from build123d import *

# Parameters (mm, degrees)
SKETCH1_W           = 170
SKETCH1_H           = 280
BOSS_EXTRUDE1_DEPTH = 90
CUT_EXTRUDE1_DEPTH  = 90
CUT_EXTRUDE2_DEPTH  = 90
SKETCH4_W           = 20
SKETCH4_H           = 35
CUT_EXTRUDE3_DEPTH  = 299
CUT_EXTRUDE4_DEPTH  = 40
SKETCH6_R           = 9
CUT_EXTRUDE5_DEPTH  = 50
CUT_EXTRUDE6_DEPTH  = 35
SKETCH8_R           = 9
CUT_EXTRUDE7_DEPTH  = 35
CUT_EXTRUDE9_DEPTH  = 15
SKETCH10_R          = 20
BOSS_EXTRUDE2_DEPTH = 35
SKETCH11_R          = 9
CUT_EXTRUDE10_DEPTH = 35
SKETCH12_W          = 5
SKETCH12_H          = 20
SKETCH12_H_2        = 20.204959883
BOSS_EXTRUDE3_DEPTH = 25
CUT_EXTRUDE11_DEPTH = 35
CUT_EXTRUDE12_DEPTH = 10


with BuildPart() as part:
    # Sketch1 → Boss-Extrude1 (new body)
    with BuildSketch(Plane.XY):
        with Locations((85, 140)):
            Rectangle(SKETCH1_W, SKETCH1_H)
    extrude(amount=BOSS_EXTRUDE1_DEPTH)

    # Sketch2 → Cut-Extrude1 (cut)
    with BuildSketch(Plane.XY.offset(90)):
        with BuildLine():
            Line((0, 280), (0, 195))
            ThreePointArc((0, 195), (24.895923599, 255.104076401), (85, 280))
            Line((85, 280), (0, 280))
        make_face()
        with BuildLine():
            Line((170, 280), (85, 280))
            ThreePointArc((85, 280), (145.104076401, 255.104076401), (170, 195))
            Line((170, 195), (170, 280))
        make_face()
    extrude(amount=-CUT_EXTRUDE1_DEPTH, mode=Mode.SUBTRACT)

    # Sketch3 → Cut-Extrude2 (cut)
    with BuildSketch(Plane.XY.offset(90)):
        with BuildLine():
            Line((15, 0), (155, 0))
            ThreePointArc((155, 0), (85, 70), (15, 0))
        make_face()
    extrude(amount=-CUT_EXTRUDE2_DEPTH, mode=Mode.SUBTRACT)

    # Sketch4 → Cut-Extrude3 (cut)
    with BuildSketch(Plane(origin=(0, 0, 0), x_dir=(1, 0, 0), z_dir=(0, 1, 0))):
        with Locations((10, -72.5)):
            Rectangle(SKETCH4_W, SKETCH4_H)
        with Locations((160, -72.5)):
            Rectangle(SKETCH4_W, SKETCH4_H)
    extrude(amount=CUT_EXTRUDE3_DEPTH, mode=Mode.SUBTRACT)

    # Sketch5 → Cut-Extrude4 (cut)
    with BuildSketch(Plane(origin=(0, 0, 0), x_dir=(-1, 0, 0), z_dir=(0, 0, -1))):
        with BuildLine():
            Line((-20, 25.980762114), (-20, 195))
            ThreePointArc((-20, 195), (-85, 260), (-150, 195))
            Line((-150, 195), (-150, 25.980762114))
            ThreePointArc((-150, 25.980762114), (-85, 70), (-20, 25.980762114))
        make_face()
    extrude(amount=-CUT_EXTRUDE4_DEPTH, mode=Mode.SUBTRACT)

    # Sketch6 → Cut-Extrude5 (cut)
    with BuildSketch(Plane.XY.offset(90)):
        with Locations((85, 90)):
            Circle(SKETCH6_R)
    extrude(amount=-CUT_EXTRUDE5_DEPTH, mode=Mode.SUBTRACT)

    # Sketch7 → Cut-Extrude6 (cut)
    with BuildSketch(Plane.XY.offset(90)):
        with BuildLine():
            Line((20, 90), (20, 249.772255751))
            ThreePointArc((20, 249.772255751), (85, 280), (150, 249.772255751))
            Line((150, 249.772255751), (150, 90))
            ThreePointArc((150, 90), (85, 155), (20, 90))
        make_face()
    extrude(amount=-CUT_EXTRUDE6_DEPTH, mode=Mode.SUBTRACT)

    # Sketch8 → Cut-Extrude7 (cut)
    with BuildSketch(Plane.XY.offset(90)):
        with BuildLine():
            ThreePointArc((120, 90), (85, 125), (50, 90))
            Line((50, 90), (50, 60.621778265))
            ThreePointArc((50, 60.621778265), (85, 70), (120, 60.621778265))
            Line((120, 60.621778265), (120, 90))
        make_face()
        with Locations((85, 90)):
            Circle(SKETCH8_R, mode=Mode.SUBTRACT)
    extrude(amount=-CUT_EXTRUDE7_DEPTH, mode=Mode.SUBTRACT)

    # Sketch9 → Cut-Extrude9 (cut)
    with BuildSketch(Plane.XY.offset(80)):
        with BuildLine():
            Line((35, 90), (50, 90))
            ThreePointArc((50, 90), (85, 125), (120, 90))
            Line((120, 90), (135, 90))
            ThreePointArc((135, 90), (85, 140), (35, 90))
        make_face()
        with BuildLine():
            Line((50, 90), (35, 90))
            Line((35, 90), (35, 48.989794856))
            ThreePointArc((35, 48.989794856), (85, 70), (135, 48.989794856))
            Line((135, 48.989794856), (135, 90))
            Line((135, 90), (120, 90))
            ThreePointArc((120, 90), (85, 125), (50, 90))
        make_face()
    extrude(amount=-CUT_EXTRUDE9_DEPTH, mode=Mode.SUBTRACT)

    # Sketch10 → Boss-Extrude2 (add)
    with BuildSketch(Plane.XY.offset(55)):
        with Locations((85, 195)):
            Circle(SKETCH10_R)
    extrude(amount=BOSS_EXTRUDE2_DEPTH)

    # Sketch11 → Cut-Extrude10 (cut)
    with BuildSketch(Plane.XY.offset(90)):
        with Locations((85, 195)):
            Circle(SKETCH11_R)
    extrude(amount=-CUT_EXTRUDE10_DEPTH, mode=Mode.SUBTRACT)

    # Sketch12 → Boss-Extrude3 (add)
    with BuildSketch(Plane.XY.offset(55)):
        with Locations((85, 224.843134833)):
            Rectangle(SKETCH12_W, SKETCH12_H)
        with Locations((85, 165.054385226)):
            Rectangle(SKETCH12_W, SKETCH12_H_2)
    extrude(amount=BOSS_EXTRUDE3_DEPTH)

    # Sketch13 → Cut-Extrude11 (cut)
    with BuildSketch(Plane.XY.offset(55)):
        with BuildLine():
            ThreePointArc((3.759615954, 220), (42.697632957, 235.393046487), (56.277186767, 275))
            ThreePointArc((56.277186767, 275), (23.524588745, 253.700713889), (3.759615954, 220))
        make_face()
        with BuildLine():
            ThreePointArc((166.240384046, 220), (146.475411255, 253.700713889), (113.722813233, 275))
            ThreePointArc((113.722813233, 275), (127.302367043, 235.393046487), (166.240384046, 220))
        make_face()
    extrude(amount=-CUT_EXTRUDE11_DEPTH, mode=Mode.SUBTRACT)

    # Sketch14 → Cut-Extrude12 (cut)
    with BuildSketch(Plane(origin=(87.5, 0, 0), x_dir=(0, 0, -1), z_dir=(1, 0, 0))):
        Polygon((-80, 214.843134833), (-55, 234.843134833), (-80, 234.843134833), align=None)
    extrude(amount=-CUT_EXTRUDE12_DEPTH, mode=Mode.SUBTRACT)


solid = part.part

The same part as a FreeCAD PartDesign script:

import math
import FreeCAD as App
import Part
import Sketcher
from FreeCAD import Vector


def add_polygon(sketch, points):
    """Adds a closed chain of lines whose ends are joined by coincident constraints."""
    first, n = sketch.GeometryCount, len(points)
    for a, b in zip(points, points[1:] + points[:1]):
        sketch.addGeometry(Part.LineSegment(App.Vector(*a, 0), App.Vector(*b, 0)), False)
    for i in range(n):
        sketch.addConstraint(Sketcher.Constraint("Coincident", first + i, 2, first + (i + 1) % n, 1))

doc = App.newDocument("Part")
body = doc.addObject("PartDesign::Body", "Body")

# Sketch on XY plane
sketch1 = doc.addObject("Sketcher::SketchObject", "Sketch")
body.addObject(sketch1)
sketch1.AttachmentSupport = (doc.XY_Plane, [""])
sketch1.MapMode = "FlatFace"
add_polygon(sketch1, [(0, 280), (0, 0), (170, 0), (170, 280)])  # lines 0-3
sketch1.addConstraint([
    Sketcher.Constraint("Vertical", 0),
    Sketcher.Constraint("Horizontal", 1),
    Sketcher.Constraint("Vertical", 2),
    Sketcher.Constraint("Horizontal", 3),
    Sketcher.Constraint("Coincident", 0, 2, -1, 1),
    Sketcher.Constraint("DistanceX", 1, 1, 1, 2, 170.0),
    Sketcher.Constraint("DistanceY", 0, 2, 0, 1, 280.0),
])
pad1 = doc.addObject("PartDesign::Pad", "Pad")
body.addObject(pad1)
pad1.Profile = sketch1
pad1.Length = 90

# Sketch on XY plane
sketch2 = doc.addObject("Sketcher::SketchObject", "Sketch001")
body.addObject(sketch2)
sketch2.AttachmentSupport = (doc.XY_Plane, [""])
sketch2.MapMode = "FlatFace"
sketch2.AttachmentOffset = App.Placement(Vector(0, 0, 90), App.Rotation())
sketch2.addGeometry([
    Part.LineSegment(Vector(0, 280, 0), Vector(0, 195, 0)),  # 0
    Part.ArcOfCircle(Part.Circle(Vector(85, 195, 0), Vector(0, 0, 1), 85), math.radians(90), math.radians(180)),  # 1
    Part.LineSegment(Vector(85, 280, 0), Vector(0, 280, 0)),  # 2
    Part.LineSegment(Vector(170, 280, 0), Vector(85, 280, 0)),  # 3
    Part.ArcOfCircle(Part.Circle(Vector(85, 195, 0), Vector(0, 0, 1), 85), math.radians(0), math.radians(90)),  # 4
    Part.LineSegment(Vector(170, 195, 0), Vector(170, 280, 0)),  # 5
], False)
sketch2.addConstraint([
    Sketcher.Constraint("Tangent", 0, 2, 1, 2),
    Sketcher.Constraint("Tangent", 1, 1, 2, 1),
    Sketcher.Constraint("Coincident", 2, 2, 0, 1),
    Sketcher.Constraint("Tangent", 3, 2, 4, 2),
    Sketcher.Constraint("Tangent", 4, 1, 5, 1),
    Sketcher.Constraint("Coincident", 5, 2, 3, 1),
    Sketcher.Constraint("Vertical", 0),
    Sketcher.Constraint("Horizontal", 2),
    Sketcher.Constraint("Horizontal", 3),
    Sketcher.Constraint("Vertical", 5),
    Sketcher.Constraint("Coincident", 4, 3, 1, 3),
    Sketcher.Constraint("Equal", 1, 4),
    Sketcher.Constraint("PointOnObject", 0, 2, -2),
    Sketcher.Constraint("Radius", 1, 85.0),
    Sketcher.Constraint("DistanceY", -1, 1, 1, 3, 195.0),
])
pocket1 = doc.addObject("PartDesign::Pocket", "Pocket")
body.addObject(pocket1)
pocket1.Profile = sketch2
pocket1.Length = 90

# Sketch on XY plane
sketch3 = doc.addObject("Sketcher::SketchObject", "Sketch002")
body.addObject(sketch3)
sketch3.AttachmentSupport = (doc.XY_Plane, [""])
sketch3.MapMode = "FlatFace"
sketch3.AttachmentOffset = App.Placement(Vector(0, 0, 90), App.Rotation())
sketch3.addGeometry([
    Part.LineSegment(Vector(15, 0, 0), Vector(155, 0, 0)),
    Part.ArcOfCircle(Part.Circle(Vector(85, 0, 0), Vector(0, 0, 1), 70), math.radians(0), math.radians(180)),
], False)
sketch3.addConstraint([
    Sketcher.Constraint("Coincident", 0, 1, 1, 2),
    Sketcher.Constraint("Coincident", 1, 1, 0, 2),
    Sketcher.Constraint("Horizontal", 0),
    Sketcher.Constraint("PointOnObject", 1, 3, -1),
    Sketcher.Constraint("PointOnObject", 0, 1, -1),
    Sketcher.Constraint("Radius", 1, 70.0),
    Sketcher.Constraint("DistanceX", -1, 1, 1, 3, 85.0),
])
pocket2 = doc.addObject("PartDesign::Pocket", "Pocket001")
body.addObject(pocket2)
pocket2.Profile = sketch3
pocket2.Length = 90

# Sketch on XZ plane
sketch4 = doc.addObject("Sketcher::SketchObject", "Sketch003")
body.addObject(sketch4)
sketch4.AttachmentSupport = (doc.XZ_Plane, [""])
sketch4.MapMode = "FlatFace"
add_polygon(sketch4, [(0, 55), (0, 90), (20, 90), (20, 55)])  # lines 0-3
add_polygon(sketch4, [(150, 55), (150, 90), (170, 90), (170, 55)])  # lines 4-7
sketch4.addConstraint([
    Sketcher.Constraint("Vertical", 0),
    Sketcher.Constraint("Horizontal", 1),
    Sketcher.Constraint("Vertical", 2),
    Sketcher.Constraint("Horizontal", 3),
    Sketcher.Constraint("Vertical", 4),
    Sketcher.Constraint("Horizontal", 5),
    Sketcher.Constraint("Vertical", 6),
    Sketcher.Constraint("Horizontal", 7),
    Sketcher.Constraint("PointOnObject", 0, 2, -2),
    Sketcher.Constraint("Horizontal", 1, 2, 4, 2),
    Sketcher.Constraint("Horizontal", 3, 2, 6, 2),
    Sketcher.Constraint("Equal", 3, 5),
    Sketcher.Constraint("DistanceX", 1, 1, 1, 2, 20.0),
    Sketcher.Constraint("DistanceY", 0, 1, 0, 2, 35.0),
    Sketcher.Constraint("DistanceY", -1, 1, 0, 2, 90.0),
    Sketcher.Constraint("DistanceX", -1, 1, 4, 2, 150.0),
])
pocket3 = doc.addObject("PartDesign::Pocket", "Pocket002")
body.addObject(pocket3)
pocket3.Profile = sketch4
pocket3.Length = 299

# Sketch on XY plane
sketch5 = doc.addObject("Sketcher::SketchObject", "Sketch004")
body.addObject(sketch5)
sketch5.AttachmentSupport = (doc.XY_Plane, [""])
sketch5.MapMode = "FlatFace"
sketch5.addGeometry([
    Part.LineSegment(Vector(20, 26, 0), Vector(20, 195, 0)),
    Part.ArcOfCircle(Part.Circle(Vector(85, 195, 0), Vector(0, 0, 1), 65), math.radians(0), math.radians(180)),
    Part.LineSegment(Vector(150, 195, 0), Vector(150, 26, 0)),
    Part.ArcOfCircle(Part.Circle(Vector(85, 0, 0), Vector(0, 0, 1), 70), math.radians(22), math.radians(158)),
], False)
sketch5.addConstraint([
    Sketcher.Constraint("Tangent", 0, 2, 1, 2),
    Sketcher.Constraint("Tangent", 1, 1, 2, 1),
    Sketcher.Constraint("Coincident", 2, 2, 3, 1),
    Sketcher.Constraint("Coincident", 3, 2, 0, 1),
    Sketcher.Constraint("Vertical", 0),
    Sketcher.Constraint("Vertical", 2),
    Sketcher.Constraint("PointOnObject", 3, 3, -1),
    Sketcher.Constraint("Horizontal", 2, 2, 3, 2),
    Sketcher.Constraint("Radius", 1, 65.0),
    Sketcher.Constraint("Radius", 3, 70.0),
    Sketcher.Constraint("DistanceX", -1, 1, 1, 3, 85.0),
    Sketcher.Constraint("DistanceY", -1, 1, 1, 3, 195.0),
])
pocket4 = doc.addObject("PartDesign::Pocket", "Pocket003")
body.addObject(pocket4)
pocket4.Profile = sketch5
pocket4.Length = 40
pocket4.Reversed = True

# Sketch on XY plane
sketch6 = doc.addObject("Sketcher::SketchObject", "Sketch005")
body.addObject(sketch6)
sketch6.AttachmentSupport = (doc.XY_Plane, [""])
sketch6.MapMode = "FlatFace"
sketch6.AttachmentOffset = App.Placement(Vector(0, 0, 90), App.Rotation())
sketch6.addGeometry(Part.Circle(Vector(85, 90, 0), Vector(0, 0, 1), 9), False)
sketch6.addConstraint([
    Sketcher.Constraint("Diameter", 0, 18.0),
    Sketcher.Constraint("DistanceX", -1, 1, 0, 3, 85.0),
    Sketcher.Constraint("DistanceY", -1, 1, 0, 3, 90.0),
])
pocket5 = doc.addObject("PartDesign::Pocket", "Pocket004")
body.addObject(pocket5)
pocket5.Profile = sketch6
pocket5.Length = 50

# Sketch on XY plane
sketch7 = doc.addObject("Sketcher::SketchObject", "Sketch006")
body.addObject(sketch7)
sketch7.AttachmentSupport = (doc.XY_Plane, [""])
sketch7.MapMode = "FlatFace"
sketch7.AttachmentOffset = App.Placement(Vector(0, 0, 90), App.Rotation())
sketch7.addGeometry([
    Part.LineSegment(Vector(20, 250, 0), Vector(20, 90, 0)),
    Part.ArcOfCircle(Part.Circle(Vector(85, 90, 0), Vector(0, 0, 1), 65), math.radians(0), math.radians(180)),
    Part.LineSegment(Vector(150, 90, 0), Vector(150, 250, 0)),
    Part.ArcOfCircle(Part.Circle(Vector(85, 195, 0), Vector(0, 0, 1), 85), math.radians(40), math.radians(140)),
], False)
sketch7.addConstraint([
    Sketcher.Constraint("Tangent", 0, 2, 1, 2),
    Sketcher.Constraint("Tangent", 1, 1, 2, 1),
    Sketcher.Constraint("Coincident", 2, 2, 3, 1),
    Sketcher.Constraint("Coincident", 3, 2, 0, 1),
    Sketcher.Constraint("Vertical", 0),
    Sketcher.Constraint("Vertical", 2),
    Sketcher.Constraint("Horizontal", 2, 2, 3, 2),
    Sketcher.Constraint("Radius", 1, 65.0),
    Sketcher.Constraint("Radius", 3, 85.0),
    Sketcher.Constraint("DistanceX", -1, 1, 1, 3, 85.0),
    Sketcher.Constraint("DistanceY", -1, 1, 1, 3, 90.0),
    Sketcher.Constraint("DistanceY", -1, 1, 3, 3, 195.0),
])
pocket6 = doc.addObject("PartDesign::Pocket", "Pocket005")
body.addObject(pocket6)
pocket6.Profile = sketch7
pocket6.Length = 35

# Sketch on XY plane
sketch8 = doc.addObject("Sketcher::SketchObject", "Sketch007")
body.addObject(sketch8)
sketch8.AttachmentSupport = (doc.XY_Plane, [""])
sketch8.MapMode = "FlatFace"
sketch8.AttachmentOffset = App.Placement(Vector(0, 0, 90), App.Rotation())
sketch8.addGeometry([
    Part.ArcOfCircle(Part.Circle(Vector(85, 90, 0), Vector(0, 0, 1), 35), math.radians(0), math.radians(180)),  # 0
    Part.LineSegment(Vector(50, 90, 0), Vector(50, 61, 0)),  # 1
    Part.ArcOfCircle(Part.Circle(Vector(85, 0, 0), Vector(0, 0, 1), 70), math.radians(60), math.radians(120)),  # 2
    Part.LineSegment(Vector(120, 61, 0), Vector(120, 90, 0)),  # 3
    Part.Circle(Vector(85, 90, 0), Vector(0, 0, 1), 9),  # 4
], False)
sketch8.addConstraint([
    Sketcher.Constraint("Tangent", 0, 2, 1, 1),
    Sketcher.Constraint("Coincident", 1, 2, 2, 2),
    Sketcher.Constraint("Coincident", 2, 1, 3, 1),
    Sketcher.Constraint("Tangent", 3, 2, 0, 1),
    Sketcher.Constraint("Vertical", 1),
    Sketcher.Constraint("Vertical", 3),
    Sketcher.Constraint("Coincident", 4, 3, 0, 3),
    Sketcher.Constraint("PointOnObject", 2, 3, -1),
    Sketcher.Constraint("Horizontal", 1, 2, 2, 1),
    Sketcher.Constraint("Diameter", 4, 18.0),
    Sketcher.Constraint("Radius", 0, 35.0),
    Sketcher.Constraint("Radius", 2, 70.0),
    Sketcher.Constraint("DistanceX", -1, 1, 0, 3, 85.0),
    Sketcher.Constraint("DistanceY", -1, 1, 0, 3, 90.0),
])
pocket7 = doc.addObject("PartDesign::Pocket", "Pocket006")
body.addObject(pocket7)
pocket7.Profile = sketch8
pocket7.Length = 35

# Sketch on XY plane
sketch9 = doc.addObject("Sketcher::SketchObject", "Sketch008")
body.addObject(sketch9)
sketch9.AttachmentSupport = (doc.XY_Plane, [""])
sketch9.MapMode = "FlatFace"
sketch9.AttachmentOffset = App.Placement(Vector(0, 0, 80), App.Rotation())
sketch9.addGeometry([
    Part.ArcOfCircle(Part.Circle(Vector(85, 90, 0), Vector(0, 0, 1), 50), math.radians(0), math.radians(180)),
    Part.LineSegment(Vector(35, 90, 0), Vector(35, 49, 0)),
    Part.ArcOfCircle(Part.Circle(Vector(85, 0, 0), Vector(0, 0, 1), 70), math.radians(44), math.radians(136)),
    Part.LineSegment(Vector(135, 49, 0), Vector(135, 90, 0)),
], False)
sketch9.addConstraint([
    Sketcher.Constraint("Tangent", 0, 2, 1, 1),
    Sketcher.Constraint("Coincident", 1, 2, 2, 2),
    Sketcher.Constraint("Coincident", 2, 1, 3, 1),
    Sketcher.Constraint("Tangent", 3, 2, 0, 1),
    Sketcher.Constraint("Vertical", 1),
    Sketcher.Constraint("Vertical", 3),
    Sketcher.Constraint("PointOnObject", 2, 3, -1),
    Sketcher.Constraint("Horizontal", 1, 2, 2, 1),
    Sketcher.Constraint("Radius", 0, 50.0),
    Sketcher.Constraint("Radius", 2, 70.0),
    Sketcher.Constraint("DistanceX", -1, 1, 0, 3, 85.0),
    Sketcher.Constraint("DistanceY", -1, 1, 0, 3, 90.0),
])
pocket8 = doc.addObject("PartDesign::Pocket", "Pocket007")
body.addObject(pocket8)
pocket8.Profile = sketch9
pocket8.Length = 15

# Sketch on XY plane
sketch10 = doc.addObject("Sketcher::SketchObject", "Sketch009")
body.addObject(sketch10)
sketch10.AttachmentSupport = (doc.XY_Plane, [""])
sketch10.MapMode = "FlatFace"
sketch10.AttachmentOffset = App.Placement(Vector(0, 0, 55), App.Rotation())
sketch10.addGeometry(Part.Circle(Vector(85, 195, 0), Vector(0, 0, 1), 20), False)
sketch10.addConstraint([
    Sketcher.Constraint("Diameter", 0, 40.0),
    Sketcher.Constraint("DistanceX", -1, 1, 0, 3, 85.0),
    Sketcher.Constraint("DistanceY", -1, 1, 0, 3, 195.0),
])
pad2 = doc.addObject("PartDesign::Pad", "Pad001")
body.addObject(pad2)
pad2.Profile = sketch10
pad2.Length = 35

# Sketch on XY plane
sketch11 = doc.addObject("Sketcher::SketchObject", "Sketch010")
body.addObject(sketch11)
sketch11.AttachmentSupport = (doc.XY_Plane, [""])
sketch11.MapMode = "FlatFace"
sketch11.AttachmentOffset = App.Placement(Vector(0, 0, 90), App.Rotation())
sketch11.addGeometry(Part.Circle(Vector(85, 195, 0), Vector(0, 0, 1), 9), False)
sketch11.addConstraint([
    Sketcher.Constraint("Diameter", 0, 18.0),
    Sketcher.Constraint("DistanceX", -1, 1, 0, 3, 85.0),
    Sketcher.Constraint("DistanceY", -1, 1, 0, 3, 195.0),
])
pocket9 = doc.addObject("PartDesign::Pocket", "Pocket008")
body.addObject(pocket9)
pocket9.Profile = sketch11
pocket9.Length = 35

# Sketch on XY plane
sketch12 = doc.addObject("Sketcher::SketchObject", "Sketch011")
body.addObject(sketch12)
sketch12.AttachmentSupport = (doc.XY_Plane, [""])
sketch12.MapMode = "FlatFace"
sketch12.AttachmentOffset = App.Placement(Vector(0, 0, 55), App.Rotation())
add_polygon(sketch12, [(82, 235), (82, 215), (88, 215), (88, 235)])  # lines 0-3
add_polygon(sketch12, [(82, 175), (82, 155), (88, 155), (88, 175)])  # lines 4-7
sketch12.addConstraint([
    Sketcher.Constraint("Vertical", 0),
    Sketcher.Constraint("Horizontal", 1),
    Sketcher.Constraint("Vertical", 2),
    Sketcher.Constraint("Horizontal", 3),
    Sketcher.Constraint("Vertical", 4),
    Sketcher.Constraint("Horizontal", 5),
    Sketcher.Constraint("Vertical", 6),
    Sketcher.Constraint("Horizontal", 7),
    Sketcher.Constraint("Vertical", 3, 2, 4, 2),
    Sketcher.Constraint("Vertical", 2, 2, 5, 2),
    Sketcher.Constraint("DistanceX", 1, 1, 1, 2, 5.0),
    Sketcher.Constraint("DistanceY", 0, 2, 0, 1, 20.0),
    Sketcher.Constraint("DistanceX", -1, 1, 0, 2, 82.5),
    Sketcher.Constraint("DistanceY", 4, 2, 4, 1, 20.20496),
    Sketcher.Constraint("DistanceY", 4, 2, 0, 2, 59.89123),
    Sketcher.Constraint("DistanceY", -1, 1, 0, 2, 214.843135),
])
pad3 = doc.addObject("PartDesign::Pad", "Pad002")
body.addObject(pad3)
pad3.Profile = sketch12
pad3.Length = 25

# Sketch on XY plane
sketch13 = doc.addObject("Sketcher::SketchObject", "Sketch012")
body.addObject(sketch13)
sketch13.AttachmentSupport = (doc.XY_Plane, [""])
sketch13.MapMode = "FlatFace"
sketch13.AttachmentOffset = App.Placement(Vector(0, 0, 55), App.Rotation())
sketch13.addGeometry([
    Part.ArcOfCircle(Part.Circle(Vector(7, 270, 0), Vector(0, 0, 1), 50), math.radians(-93), math.radians(6)),
    Part.ArcOfCircle(Part.Circle(Vector(85, 195, 0), Vector(0, 0, 1), 85), math.radians(110), math.radians(163)),
    Part.ArcOfCircle(Part.Circle(Vector(85, 195, 0), Vector(0, 0, 1), 85), math.radians(17), math.radians(70)),
    Part.ArcOfCircle(Part.Circle(Vector(163, 270, 0), Vector(0, 0, 1), 50), math.radians(174), math.radians(273)),
], False)
sketch13.addConstraint([
    Sketcher.Constraint("Coincident", 0, 1, 1, 2),
    Sketcher.Constraint("Coincident", 1, 1, 0, 2),
    Sketcher.Constraint("Coincident", 2, 1, 3, 2),
    Sketcher.Constraint("Coincident", 3, 1, 2, 2),
    Sketcher.Constraint("Coincident", 2, 3, 1, 3),
    Sketcher.Constraint("Equal", 1, 2),
    Sketcher.Constraint("Equal", 0, 3),
    Sketcher.Constraint("Horizontal", 0, 3, 3, 3),
    Sketcher.Constraint("Horizontal", 1, 1, 3, 1),
    Sketcher.Constraint("Radius", 0, 50.0),
    Sketcher.Constraint("Radius", 1, 85.0),
    Sketcher.Constraint("DistanceX", -1, 1, 1, 3, 85.0),
    Sketcher.Constraint("DistanceY", -1, 1, 1, 3, 195.0),
    Sketcher.Constraint("DistanceY", -1, 1, 0, 1, 220.0),
    Sketcher.Constraint("DistanceY", -1, 1, 1, 1, 275.0),
])
pocket10 = doc.addObject("PartDesign::Pocket", "Pocket009")
body.addObject(pocket10)
pocket10.Profile = sketch13
pocket10.Length = 35

# Sketch on YZ plane
sketch14 = doc.addObject("Sketcher::SketchObject", "Sketch013")
body.addObject(sketch14)
sketch14.AttachmentSupport = (doc.YZ_Plane, [""])
sketch14.MapMode = "FlatFace"
sketch14.AttachmentOffset = App.Placement(Vector(0, 0, 87.5), App.Rotation())
add_polygon(sketch14, [(215, 80), (235, 55), (235, 80)])  # lines 0-2
sketch14.addConstraint([
    Sketcher.Constraint("Vertical", 1),
    Sketcher.Constraint("Horizontal", 2),
    Sketcher.Constraint("DistanceX", 2, 2, 2, 1, 20.0),
    Sketcher.Constraint("DistanceY", 1, 1, 1, 2, 25.0),
    Sketcher.Constraint("DistanceY", -1, 1, 0, 2, 55.0),
    Sketcher.Constraint("DistanceX", -1, 1, 0, 2, 234.843135),
])
pocket11 = doc.addObject("PartDesign::Pocket", "Pocket010")
body.addObject(pocket11)
pocket11.Profile = sketch14
pocket11.Length = 10

doc.recompute()
